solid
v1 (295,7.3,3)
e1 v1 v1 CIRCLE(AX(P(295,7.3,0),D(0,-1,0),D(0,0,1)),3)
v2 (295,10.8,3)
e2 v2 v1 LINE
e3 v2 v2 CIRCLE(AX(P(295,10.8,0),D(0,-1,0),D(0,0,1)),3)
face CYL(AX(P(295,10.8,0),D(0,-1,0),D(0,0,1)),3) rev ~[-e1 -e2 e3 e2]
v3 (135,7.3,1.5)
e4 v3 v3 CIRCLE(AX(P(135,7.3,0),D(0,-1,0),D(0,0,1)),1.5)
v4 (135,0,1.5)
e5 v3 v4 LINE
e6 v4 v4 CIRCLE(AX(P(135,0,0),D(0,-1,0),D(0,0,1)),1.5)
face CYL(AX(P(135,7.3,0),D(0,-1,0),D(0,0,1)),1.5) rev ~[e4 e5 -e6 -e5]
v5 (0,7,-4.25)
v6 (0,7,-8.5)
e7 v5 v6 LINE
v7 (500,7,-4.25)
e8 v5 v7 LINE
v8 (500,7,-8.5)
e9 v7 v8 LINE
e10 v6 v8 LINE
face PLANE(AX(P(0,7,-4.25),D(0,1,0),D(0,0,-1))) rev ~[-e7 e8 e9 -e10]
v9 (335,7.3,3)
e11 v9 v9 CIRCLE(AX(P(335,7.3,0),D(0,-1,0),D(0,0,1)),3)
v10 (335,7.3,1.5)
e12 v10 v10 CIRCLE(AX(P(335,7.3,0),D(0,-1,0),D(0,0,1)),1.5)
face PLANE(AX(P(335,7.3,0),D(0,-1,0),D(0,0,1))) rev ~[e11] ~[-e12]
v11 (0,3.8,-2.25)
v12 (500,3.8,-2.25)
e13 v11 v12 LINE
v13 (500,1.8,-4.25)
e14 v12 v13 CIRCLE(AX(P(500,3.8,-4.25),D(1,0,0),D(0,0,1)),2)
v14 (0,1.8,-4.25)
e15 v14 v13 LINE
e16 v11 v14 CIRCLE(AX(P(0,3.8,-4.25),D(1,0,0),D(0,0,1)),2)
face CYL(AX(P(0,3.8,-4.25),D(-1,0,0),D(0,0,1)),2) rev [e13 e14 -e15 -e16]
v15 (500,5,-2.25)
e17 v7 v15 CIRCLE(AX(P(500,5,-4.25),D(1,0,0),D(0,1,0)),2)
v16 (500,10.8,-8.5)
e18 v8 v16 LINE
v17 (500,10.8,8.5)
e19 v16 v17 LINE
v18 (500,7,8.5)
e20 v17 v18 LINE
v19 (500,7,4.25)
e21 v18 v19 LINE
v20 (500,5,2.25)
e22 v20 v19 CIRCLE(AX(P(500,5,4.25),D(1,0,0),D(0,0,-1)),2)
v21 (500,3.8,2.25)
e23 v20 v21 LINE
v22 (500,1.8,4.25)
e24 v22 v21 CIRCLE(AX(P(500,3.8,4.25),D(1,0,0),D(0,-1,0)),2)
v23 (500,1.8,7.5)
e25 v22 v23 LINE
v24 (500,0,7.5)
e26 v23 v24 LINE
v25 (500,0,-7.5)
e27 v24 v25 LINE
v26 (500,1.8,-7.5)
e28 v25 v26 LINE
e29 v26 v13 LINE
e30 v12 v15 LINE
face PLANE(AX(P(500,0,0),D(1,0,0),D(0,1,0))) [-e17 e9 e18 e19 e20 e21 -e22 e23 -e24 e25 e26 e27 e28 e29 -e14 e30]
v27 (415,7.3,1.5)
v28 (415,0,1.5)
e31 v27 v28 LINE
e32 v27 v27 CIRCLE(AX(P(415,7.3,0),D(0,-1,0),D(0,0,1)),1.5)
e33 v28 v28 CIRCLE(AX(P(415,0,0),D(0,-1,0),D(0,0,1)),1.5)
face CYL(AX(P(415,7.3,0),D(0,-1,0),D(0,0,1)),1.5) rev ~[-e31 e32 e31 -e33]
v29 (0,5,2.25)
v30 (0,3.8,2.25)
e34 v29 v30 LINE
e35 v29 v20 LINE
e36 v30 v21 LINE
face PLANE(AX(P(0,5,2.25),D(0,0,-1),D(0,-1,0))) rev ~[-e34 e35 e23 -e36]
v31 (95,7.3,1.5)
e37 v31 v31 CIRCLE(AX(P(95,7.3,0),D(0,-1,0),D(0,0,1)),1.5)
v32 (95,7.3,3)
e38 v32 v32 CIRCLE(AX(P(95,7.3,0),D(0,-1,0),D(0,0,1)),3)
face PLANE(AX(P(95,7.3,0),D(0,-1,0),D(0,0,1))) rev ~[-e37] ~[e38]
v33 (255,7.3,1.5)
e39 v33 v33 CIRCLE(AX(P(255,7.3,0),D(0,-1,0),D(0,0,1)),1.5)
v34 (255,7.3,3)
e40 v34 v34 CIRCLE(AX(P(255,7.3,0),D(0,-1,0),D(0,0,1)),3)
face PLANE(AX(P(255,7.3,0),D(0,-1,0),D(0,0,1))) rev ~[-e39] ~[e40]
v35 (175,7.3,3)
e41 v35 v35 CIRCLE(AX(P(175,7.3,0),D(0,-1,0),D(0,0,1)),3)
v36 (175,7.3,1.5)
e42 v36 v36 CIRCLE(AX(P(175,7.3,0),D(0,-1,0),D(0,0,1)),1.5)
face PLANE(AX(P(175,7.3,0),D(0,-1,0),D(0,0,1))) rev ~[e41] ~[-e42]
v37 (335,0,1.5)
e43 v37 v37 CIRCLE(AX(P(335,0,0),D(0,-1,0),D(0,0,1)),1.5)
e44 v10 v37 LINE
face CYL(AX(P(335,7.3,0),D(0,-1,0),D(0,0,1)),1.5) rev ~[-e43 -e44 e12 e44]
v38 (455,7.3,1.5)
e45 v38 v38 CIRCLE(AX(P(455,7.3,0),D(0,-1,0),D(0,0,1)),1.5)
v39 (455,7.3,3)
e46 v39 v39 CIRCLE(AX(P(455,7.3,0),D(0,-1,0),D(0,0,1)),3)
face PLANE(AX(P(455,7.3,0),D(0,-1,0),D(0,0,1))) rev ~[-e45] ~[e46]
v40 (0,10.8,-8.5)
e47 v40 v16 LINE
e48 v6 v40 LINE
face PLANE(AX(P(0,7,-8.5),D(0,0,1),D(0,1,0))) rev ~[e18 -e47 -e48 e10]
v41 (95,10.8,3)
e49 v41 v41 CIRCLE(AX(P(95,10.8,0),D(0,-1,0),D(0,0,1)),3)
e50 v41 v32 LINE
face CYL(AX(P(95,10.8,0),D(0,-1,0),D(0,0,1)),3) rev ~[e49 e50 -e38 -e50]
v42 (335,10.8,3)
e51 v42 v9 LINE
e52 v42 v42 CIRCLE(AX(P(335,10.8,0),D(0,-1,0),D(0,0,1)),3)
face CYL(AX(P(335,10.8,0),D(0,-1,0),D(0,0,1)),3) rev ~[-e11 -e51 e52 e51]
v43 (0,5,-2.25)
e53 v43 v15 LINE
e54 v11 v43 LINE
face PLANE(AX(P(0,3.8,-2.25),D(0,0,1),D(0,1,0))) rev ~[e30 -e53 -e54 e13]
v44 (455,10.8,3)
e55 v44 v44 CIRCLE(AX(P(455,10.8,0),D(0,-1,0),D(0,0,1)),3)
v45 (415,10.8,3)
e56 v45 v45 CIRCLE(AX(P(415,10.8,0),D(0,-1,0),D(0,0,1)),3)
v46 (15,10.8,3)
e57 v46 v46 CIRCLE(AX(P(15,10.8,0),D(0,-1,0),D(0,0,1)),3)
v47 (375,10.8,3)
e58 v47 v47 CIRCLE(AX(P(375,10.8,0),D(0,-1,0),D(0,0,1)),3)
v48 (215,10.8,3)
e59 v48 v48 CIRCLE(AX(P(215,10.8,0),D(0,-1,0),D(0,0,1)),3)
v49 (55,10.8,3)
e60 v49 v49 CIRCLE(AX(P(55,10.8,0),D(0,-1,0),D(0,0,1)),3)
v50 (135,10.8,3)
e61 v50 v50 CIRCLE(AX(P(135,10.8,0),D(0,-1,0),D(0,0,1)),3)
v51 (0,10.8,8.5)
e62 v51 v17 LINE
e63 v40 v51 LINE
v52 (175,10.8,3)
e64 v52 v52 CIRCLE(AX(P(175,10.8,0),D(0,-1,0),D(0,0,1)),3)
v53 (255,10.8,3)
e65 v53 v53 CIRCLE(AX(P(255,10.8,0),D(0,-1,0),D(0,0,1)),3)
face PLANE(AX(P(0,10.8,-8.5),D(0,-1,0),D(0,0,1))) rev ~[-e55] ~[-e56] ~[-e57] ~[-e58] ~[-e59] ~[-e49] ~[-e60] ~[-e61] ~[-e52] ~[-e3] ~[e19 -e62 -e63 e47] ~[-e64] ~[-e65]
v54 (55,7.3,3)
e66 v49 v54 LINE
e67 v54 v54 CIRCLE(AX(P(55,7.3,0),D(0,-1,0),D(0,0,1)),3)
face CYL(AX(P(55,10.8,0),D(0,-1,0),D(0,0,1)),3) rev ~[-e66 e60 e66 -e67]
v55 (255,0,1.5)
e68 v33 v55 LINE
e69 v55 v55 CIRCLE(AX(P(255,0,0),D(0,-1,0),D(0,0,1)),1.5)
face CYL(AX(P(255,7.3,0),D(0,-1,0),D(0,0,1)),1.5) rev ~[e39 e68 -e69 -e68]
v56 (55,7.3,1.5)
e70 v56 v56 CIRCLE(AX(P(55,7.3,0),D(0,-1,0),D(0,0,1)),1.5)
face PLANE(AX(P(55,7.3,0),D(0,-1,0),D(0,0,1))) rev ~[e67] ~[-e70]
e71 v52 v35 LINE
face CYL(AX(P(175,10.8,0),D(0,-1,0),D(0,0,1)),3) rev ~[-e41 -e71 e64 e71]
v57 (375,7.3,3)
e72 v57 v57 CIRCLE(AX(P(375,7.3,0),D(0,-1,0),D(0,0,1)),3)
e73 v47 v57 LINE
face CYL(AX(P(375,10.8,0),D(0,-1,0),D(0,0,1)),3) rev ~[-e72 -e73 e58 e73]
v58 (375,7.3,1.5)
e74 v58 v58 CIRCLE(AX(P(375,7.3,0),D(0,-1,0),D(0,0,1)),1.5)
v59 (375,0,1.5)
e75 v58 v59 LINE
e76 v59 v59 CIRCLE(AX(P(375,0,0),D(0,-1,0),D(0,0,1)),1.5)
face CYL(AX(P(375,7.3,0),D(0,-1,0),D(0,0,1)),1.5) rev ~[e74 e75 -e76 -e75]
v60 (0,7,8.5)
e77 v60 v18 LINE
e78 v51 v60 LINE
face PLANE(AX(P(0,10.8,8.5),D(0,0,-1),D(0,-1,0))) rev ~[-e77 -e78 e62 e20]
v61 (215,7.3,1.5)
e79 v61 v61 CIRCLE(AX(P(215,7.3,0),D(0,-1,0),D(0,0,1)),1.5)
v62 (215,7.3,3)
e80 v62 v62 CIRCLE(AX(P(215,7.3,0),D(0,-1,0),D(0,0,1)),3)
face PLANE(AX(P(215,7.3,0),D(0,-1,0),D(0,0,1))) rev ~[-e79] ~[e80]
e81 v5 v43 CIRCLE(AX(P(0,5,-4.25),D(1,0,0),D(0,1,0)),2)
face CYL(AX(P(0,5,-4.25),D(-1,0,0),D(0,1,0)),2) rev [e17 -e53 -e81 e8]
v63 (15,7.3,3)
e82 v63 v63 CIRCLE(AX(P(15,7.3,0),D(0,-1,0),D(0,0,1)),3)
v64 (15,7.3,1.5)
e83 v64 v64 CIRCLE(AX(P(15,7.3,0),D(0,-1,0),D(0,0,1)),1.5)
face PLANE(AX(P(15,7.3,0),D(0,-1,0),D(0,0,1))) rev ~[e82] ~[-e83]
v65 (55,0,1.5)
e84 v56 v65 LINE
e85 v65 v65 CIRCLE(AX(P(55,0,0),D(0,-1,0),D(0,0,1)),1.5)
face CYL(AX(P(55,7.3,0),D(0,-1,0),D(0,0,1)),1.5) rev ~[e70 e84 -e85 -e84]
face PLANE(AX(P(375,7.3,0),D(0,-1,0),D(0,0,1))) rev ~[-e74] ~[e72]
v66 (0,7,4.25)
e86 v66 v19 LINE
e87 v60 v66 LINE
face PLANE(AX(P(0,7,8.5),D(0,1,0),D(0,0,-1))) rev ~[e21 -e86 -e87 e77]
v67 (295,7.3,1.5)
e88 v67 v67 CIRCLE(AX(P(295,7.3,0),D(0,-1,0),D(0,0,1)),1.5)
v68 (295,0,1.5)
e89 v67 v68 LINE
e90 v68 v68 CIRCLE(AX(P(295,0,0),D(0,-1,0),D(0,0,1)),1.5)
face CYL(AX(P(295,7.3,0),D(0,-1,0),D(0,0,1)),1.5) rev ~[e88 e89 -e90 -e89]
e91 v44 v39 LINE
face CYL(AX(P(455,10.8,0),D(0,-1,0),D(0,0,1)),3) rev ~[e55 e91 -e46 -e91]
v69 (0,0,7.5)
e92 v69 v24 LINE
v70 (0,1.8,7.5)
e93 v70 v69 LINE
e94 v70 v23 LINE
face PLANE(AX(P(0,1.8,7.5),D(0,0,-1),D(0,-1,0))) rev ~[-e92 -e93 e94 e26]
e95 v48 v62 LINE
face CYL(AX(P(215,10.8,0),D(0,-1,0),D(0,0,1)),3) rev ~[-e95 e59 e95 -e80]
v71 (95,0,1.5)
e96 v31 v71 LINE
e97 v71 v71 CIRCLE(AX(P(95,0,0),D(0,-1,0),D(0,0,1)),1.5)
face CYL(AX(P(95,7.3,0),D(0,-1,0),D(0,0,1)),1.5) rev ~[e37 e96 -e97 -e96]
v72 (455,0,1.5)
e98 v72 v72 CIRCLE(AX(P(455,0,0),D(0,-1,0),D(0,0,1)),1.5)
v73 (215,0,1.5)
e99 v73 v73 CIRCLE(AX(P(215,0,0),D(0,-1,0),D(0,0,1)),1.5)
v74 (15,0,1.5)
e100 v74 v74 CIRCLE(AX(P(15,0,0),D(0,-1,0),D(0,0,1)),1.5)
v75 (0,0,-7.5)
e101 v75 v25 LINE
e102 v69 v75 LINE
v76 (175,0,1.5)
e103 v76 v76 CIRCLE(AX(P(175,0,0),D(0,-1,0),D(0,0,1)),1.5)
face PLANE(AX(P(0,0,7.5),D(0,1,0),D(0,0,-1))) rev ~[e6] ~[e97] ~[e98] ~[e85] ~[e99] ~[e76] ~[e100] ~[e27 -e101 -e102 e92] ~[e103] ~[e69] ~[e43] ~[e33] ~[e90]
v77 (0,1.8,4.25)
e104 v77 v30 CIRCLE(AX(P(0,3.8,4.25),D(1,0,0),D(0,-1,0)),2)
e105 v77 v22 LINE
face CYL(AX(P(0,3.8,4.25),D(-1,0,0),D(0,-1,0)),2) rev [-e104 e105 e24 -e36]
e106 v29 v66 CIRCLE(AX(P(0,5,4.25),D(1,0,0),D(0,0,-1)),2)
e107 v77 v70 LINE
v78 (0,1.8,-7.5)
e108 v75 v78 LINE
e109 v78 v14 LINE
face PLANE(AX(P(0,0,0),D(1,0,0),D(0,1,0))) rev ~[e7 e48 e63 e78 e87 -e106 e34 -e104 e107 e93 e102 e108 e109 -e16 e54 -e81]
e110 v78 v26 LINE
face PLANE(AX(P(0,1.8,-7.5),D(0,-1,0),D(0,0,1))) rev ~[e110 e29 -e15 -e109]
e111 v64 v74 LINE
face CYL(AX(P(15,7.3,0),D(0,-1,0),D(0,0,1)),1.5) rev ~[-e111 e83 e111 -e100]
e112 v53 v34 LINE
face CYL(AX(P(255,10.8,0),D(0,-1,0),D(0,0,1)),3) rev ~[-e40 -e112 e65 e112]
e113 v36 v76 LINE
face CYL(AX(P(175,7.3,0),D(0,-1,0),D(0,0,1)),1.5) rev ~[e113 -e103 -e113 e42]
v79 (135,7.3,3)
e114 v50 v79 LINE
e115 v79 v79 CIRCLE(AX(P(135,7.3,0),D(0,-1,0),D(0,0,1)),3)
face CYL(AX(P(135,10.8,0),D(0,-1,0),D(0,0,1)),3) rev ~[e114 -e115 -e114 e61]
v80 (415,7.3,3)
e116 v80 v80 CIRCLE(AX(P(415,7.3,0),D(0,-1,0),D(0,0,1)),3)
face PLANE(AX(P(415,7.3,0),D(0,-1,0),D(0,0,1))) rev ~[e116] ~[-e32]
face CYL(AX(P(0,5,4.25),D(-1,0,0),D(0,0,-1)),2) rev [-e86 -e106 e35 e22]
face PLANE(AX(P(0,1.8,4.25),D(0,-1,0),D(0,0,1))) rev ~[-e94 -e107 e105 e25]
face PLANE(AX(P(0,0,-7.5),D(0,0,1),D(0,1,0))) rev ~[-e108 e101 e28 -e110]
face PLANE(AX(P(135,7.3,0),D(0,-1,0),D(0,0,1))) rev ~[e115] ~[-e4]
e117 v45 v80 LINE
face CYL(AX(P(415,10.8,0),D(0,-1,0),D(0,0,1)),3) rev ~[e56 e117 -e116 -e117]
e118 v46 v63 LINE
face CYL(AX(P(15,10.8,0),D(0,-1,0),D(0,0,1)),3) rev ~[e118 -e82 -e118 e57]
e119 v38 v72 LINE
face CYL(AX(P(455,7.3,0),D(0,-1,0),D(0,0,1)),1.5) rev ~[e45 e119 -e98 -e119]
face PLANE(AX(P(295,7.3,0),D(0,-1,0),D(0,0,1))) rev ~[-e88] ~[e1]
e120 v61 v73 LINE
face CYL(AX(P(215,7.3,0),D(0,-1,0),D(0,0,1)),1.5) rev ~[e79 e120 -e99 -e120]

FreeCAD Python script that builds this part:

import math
import FreeCAD as App
import Part
import Sketcher
from FreeCAD import Vector

doc = App.newDocument("Part")
body = doc.addObject("PartDesign::Body", "Body")

sketch1 = body.newObject("Sketcher::SketchObject", "Sketch")
sketch1.AttachmentSupport = (doc.getObject("YZ_Plane"), [""])
sketch1.MapMode = "FlatFace"
sketch1.addGeometry([
    Part.LineSegment(Vector(10.8, -8.5, 0), Vector(10.8, 8.5, 0)),
    Part.LineSegment(Vector(10.8, 8.5, 0), Vector(7, 8.5, 0)),
    Part.LineSegment(Vector(7, 8.5, 0), Vector(7, 4.2, 0)),
    Part.ArcOfCircle(Part.Circle(Vector(5, 4.2, 0), Vector(0, 0, 1), 2), math.radians(-90), math.radians(0)),
    Part.LineSegment(Vector(5, 2.2, 0), Vector(3.8, 2.2, 0)),
    Part.ArcOfCircle(Part.Circle(Vector(3.8, 4.2, 0), Vector(0, 0, 1), 2), math.radians(180), math.radians(270)),
    Part.LineSegment(Vector(1.8, 4.2, 0), Vector(1.8, 7.5, 0)),
    Part.LineSegment(Vector(1.8, 7.5, 0), Vector(0, 7.5, 0)),
    Part.LineSegment(Vector(0, 7.5, 0), Vector(0, -7.5, 0)),
    Part.LineSegment(Vector(0, -7.5, 0), Vector(1.8, -7.5, 0)),
    Part.LineSegment(Vector(1.8, -7.5, 0), Vector(1.8, -4.2, 0)),
    Part.ArcOfCircle(Part.Circle(Vector(3.8, -4.2, 0), Vector(0, 0, 1), 2), math.radians(90), math.radians(180)),
    Part.LineSegment(Vector(3.8, -2.2, 0), Vector(5, -2.2, 0)),
    Part.ArcOfCircle(Part.Circle(Vector(5, -4.2, 0), Vector(0, 0, 1), 2), math.radians(0), math.radians(90)),
    Part.LineSegment(Vector(7, -4.2, 0), Vector(7, -8.5, 0)),
    Part.LineSegment(Vector(7, -8.5, 0), Vector(10.8, -8.5, 0)),
], False)
sketch1.addConstraint([
    Sketcher.Constraint("Coincident", 0, 2, 1, 1),
    Sketcher.Constraint("Coincident", 1, 2, 2, 1),
    Sketcher.Constraint("Tangent", 2, 2, 3, 2),
    Sketcher.Constraint("Tangent", 3, 1, 4, 1),
    Sketcher.Constraint("Tangent", 4, 2, 5, 2),
    Sketcher.Constraint("Tangent", 5, 1, 6, 1),
    Sketcher.Constraint("Coincident", 6, 2, 7, 1),
    Sketcher.Constraint("Coincident", 7, 2, 8, 1),
    Sketcher.Constraint("Coincident", 8, 2, 9, 1),
    Sketcher.Constraint("Coincident", 9, 2, 10, 1),
    Sketcher.Constraint("Tangent", 10, 2, 11, 2),
    Sketcher.Constraint("Tangent", 11, 1, 12, 1),
    Sketcher.Constraint("Tangent", 12, 2, 13, 2),
    Sketcher.Constraint("Tangent", 13, 1, 14, 1),
    Sketcher.Constraint("Coincident", 14, 2, 15, 1),
    Sketcher.Constraint("Coincident", 15, 2, 0, 1),
    Sketcher.Constraint("Vertical", 0),
    Sketcher.Constraint("Horizontal", 1),
    Sketcher.Constraint("Vertical", 2),
    Sketcher.Constraint("Horizontal", 4),
    Sketcher.Constraint("Vertical", 6),
    Sketcher.Constraint("Horizontal", 7),
    Sketcher.Constraint("Vertical", 8),
    Sketcher.Constraint("Horizontal", 9),
    Sketcher.Constraint("Vertical", 10),
    Sketcher.Constraint("Horizontal", 12),
    Sketcher.Constraint("Vertical", 14),
    Sketcher.Constraint("Horizontal", 15),
    Sketcher.Constraint("Equal", 3, 5),
    Sketcher.Constraint("Equal", 5, 11),
    Sketcher.Constraint("Equal", 11, 13),
    Sketcher.Constraint("Symmetric", 7, 2, 8, 2, -1, 1),
    Sketcher.Constraint("Symmetric", 5, 3, 11, 3, -1),
    Sketcher.Constraint("Symmetric", 1, 2, 14, 2, -1),
    Sketcher.Constraint("Radius", 3, 2.0),
    Sketcher.Constraint("DistanceY", 0, 1, 0, 2, 17.0),
    Sketcher.Constraint("DistanceY", 8, 2, 8, 1, 15.0),
    Sketcher.Constraint("DistanceX", 7, 2, 7, 1, 1.8),
    Sketcher.Constraint("DistanceX", -1, 1, 1, 2, 7.0),
    Sketcher.Constraint("DistanceX", 5, 3, 0, 2, 7.0),
    Sketcher.Constraint("DistanceY", 2, 2, 2, 1, 4.25),
])
pad1 = body.newObject("PartDesign::Pad", "Pad")
pad1.Profile = sketch1
pad1.Length = 500

sketch2 = body.newObject("Sketcher::SketchObject", "Sketch001")
sketch2.AttachmentSupport = (doc.getObject("XZ_Plane"), [""])
sketch2.MapMode = "FlatFace"
sketch2.AttachmentOffset = App.Placement(Vector(0, 0, -10.8), App.Rotation())
sketch2.addGeometry([
    Part.Circle(Vector(15, 0, 0), Vector(0, 0, 1), 1.5),
    Part.Circle(Vector(55, 0, 0), Vector(0, 0, 1), 1.5),
    Part.Circle(Vector(95, 0, 0), Vector(0, 0, 1), 1.5),
    Part.Circle(Vector(135, 0, 0), Vector(0, 0, 1), 1.5),
    Part.Circle(Vector(175, 0, 0), Vector(0, 0, 1), 1.5),
    Part.Circle(Vector(215, 0, 0), Vector(0, 0, 1), 1.5),
    Part.Circle(Vector(255, 0, 0), Vector(0, 0, 1), 1.5),
    Part.Circle(Vector(295, 0, 0), Vector(0, 0, 1), 1.5),
    Part.Circle(Vector(335, 0, 0), Vector(0, 0, 1), 1.5),
    Part.Circle(Vector(375, 0, 0), Vector(0, 0, 1), 1.5),
    Part.Circle(Vector(415, 0, 0), Vector(0, 0, 1), 1.5),
    Part.Circle(Vector(455, 0, 0), Vector(0, 0, 1), 1.5),
], False)
sketch2.addConstraint([
    Sketcher.Constraint("Equal", 0, 1),
    Sketcher.Constraint("Equal", 1, 2),
    Sketcher.Constraint("Equal", 2, 3),
    Sketcher.Constraint("Equal", 3, 4),
    Sketcher.Constraint("Equal", 4, 5),
    Sketcher.Constraint("Equal", 5, 6),
    Sketcher.Constraint("Equal", 6, 7),
    Sketcher.Constraint("Equal", 7, 8),
    Sketcher.Constraint("Equal", 8, 9),
    Sketcher.Constraint("Equal", 9, 10),
    Sketcher.Constraint("Equal", 10, 11),
    Sketcher.Constraint("PointOnObject", 0, 3, -1),
    Sketcher.Constraint("PointOnObject", 1, 3, -1),
    Sketcher.Constraint("PointOnObject", 2, 3, -1),
    Sketcher.Constraint("PointOnObject", 3, 3, -1),
    Sketcher.Constraint("PointOnObject", 4, 3, -1),
    Sketcher.Constraint("PointOnObject", 5, 3, -1),
    Sketcher.Constraint("PointOnObject", 6, 3, -1),
    Sketcher.Constraint("PointOnObject", 7, 3, -1),
    Sketcher.Constraint("PointOnObject", 8, 3, -1),
    Sketcher.Constraint("PointOnObject", 9, 3, -1),
    Sketcher.Constraint("PointOnObject", 10, 3, -1),
    Sketcher.Constraint("PointOnObject", 11, 3, -1),
    Sketcher.Constraint("Diameter", 0, 3.0),
    Sketcher.Constraint("DistanceX", -1, 1, 0, 3, 15.0),
    Sketcher.Constraint("DistanceX", -1, 1, 1, 3, 55.0),
    Sketcher.Constraint("DistanceX", -1, 1, 2, 3, 95.0),
    Sketcher.Constraint("DistanceX", -1, 1, 3, 3, 135.0),
    Sketcher.Constraint("DistanceX", -1, 1, 4, 3, 175.0),
    Sketcher.Constraint("DistanceX", -1, 1, 5, 3, 215.0),
    Sketcher.Constraint("DistanceX", -1, 1, 6, 3, 255.0),
    Sketcher.Constraint("DistanceX", -1, 1, 7, 3, 295.0),
    Sketcher.Constraint("DistanceX", -1, 1, 8, 3, 335.0),
    Sketcher.Constraint("DistanceX", -1, 1, 9, 3, 375.0),
    Sketcher.Constraint("DistanceX", -1, 1, 10, 3, 415.0),
    Sketcher.Constraint("DistanceX", -1, 1, 11, 3, 455.0),
])
doc.recompute()
hole = body.newObject("PartDesign::Hole", "Hole")
hole.Profile = sketch2
hole.ThreadType = "None"
hole.Diameter = 3
hole.DepthType = "Dimension"
hole.Depth = 20
hole.DrillPoint = "Angled"
hole.DrillPointAngle = 118
hole.HoleCutType = "Counterbore"
hole.HoleCutDiameter = 6
hole.HoleCutDepth = 3.5
hole.Reversed = True

doc.recompute()
